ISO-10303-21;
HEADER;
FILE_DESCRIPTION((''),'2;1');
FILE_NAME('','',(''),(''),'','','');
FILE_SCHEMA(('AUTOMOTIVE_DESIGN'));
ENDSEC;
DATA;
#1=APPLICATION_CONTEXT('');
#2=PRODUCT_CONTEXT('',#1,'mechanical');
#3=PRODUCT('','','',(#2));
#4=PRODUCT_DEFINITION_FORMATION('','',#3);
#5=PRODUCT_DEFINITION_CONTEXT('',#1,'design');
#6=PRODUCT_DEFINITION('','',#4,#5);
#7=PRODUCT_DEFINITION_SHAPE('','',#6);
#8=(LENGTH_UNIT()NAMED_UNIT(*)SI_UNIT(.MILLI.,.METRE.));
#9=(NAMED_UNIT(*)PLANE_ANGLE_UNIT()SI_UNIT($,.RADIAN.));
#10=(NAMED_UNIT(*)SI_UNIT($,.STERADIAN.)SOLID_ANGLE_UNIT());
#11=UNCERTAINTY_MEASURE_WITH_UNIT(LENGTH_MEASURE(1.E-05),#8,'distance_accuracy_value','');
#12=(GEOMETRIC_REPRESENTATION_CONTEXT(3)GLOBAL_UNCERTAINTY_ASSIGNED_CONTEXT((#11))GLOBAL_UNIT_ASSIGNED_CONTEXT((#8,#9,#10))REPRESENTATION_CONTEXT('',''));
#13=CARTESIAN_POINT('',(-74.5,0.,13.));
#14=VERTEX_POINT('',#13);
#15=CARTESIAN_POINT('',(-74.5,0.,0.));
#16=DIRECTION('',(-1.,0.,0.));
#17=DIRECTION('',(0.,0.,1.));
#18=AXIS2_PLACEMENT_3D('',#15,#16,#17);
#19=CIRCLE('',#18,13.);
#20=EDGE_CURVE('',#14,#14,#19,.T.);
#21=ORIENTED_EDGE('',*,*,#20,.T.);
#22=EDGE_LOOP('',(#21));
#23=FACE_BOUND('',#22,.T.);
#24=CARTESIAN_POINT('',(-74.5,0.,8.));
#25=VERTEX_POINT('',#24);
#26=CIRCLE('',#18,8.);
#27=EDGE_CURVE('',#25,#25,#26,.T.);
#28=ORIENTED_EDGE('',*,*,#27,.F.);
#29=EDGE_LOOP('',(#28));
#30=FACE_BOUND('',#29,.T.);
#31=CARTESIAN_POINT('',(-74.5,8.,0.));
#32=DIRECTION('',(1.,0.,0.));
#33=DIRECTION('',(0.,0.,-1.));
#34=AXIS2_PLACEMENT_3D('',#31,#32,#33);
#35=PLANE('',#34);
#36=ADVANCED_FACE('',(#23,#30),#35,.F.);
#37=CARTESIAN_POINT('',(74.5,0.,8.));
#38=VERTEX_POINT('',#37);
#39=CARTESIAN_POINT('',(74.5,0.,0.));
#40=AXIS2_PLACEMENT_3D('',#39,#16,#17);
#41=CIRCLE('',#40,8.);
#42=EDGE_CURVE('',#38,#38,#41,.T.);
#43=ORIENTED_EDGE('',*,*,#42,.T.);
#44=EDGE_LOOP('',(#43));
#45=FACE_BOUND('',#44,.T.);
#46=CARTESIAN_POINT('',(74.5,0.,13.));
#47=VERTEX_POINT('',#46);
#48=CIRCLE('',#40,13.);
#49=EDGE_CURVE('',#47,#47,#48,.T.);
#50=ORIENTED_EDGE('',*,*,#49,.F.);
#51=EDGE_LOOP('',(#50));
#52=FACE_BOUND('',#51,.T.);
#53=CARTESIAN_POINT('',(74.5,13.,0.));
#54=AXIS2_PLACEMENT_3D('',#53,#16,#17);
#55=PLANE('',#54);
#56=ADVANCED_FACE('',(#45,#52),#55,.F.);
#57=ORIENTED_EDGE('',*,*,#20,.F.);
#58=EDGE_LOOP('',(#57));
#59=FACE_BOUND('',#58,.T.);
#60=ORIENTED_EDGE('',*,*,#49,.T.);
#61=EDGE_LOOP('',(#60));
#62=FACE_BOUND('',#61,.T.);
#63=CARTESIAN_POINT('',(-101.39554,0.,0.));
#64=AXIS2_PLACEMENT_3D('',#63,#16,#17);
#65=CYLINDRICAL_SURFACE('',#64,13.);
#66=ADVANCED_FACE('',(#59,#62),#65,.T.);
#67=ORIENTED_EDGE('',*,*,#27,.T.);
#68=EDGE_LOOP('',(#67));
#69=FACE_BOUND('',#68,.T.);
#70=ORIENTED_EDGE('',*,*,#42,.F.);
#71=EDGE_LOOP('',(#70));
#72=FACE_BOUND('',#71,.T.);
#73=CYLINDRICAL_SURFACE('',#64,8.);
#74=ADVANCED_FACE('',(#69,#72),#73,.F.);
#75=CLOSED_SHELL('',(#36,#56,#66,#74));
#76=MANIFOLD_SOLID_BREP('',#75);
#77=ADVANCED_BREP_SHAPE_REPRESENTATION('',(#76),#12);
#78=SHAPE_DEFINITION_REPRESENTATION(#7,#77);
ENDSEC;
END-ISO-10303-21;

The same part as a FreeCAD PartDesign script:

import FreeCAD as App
import Part
import Sketcher
from FreeCAD import Vector
Q = App.Units.Quantity

doc = App.newDocument("Part")
body = doc.addObject("PartDesign::Body", "Body")

# Sketch on XY plane
sketch1 = doc.addObject("Sketcher::SketchObject", "Sketch")
body.addObject(sketch1)
sketch1.AttachmentSupport = (doc.XY_Plane, [""])
sketch1.MapMode = "FlatFace"
sketch1.addGeometry([
    Part.LineSegment(Vector(-74.5, 13, 0), Vector(-74.5, 8, 0)),
    Part.LineSegment(Vector(-74.5, 8, 0), Vector(74.5, 8, 0)),
    Part.LineSegment(Vector(74.5, 8, 0), Vector(74.5, 13, 0)),
    Part.LineSegment(Vector(74.5, 13, 0), Vector(-74.5, 13, 0)),
], False)
sketch1.addConstraint([
    Sketcher.Constraint("Coincident", 0, 2, 1, 1),
    Sketcher.Constraint("Coincident", 1, 2, 2, 1),
    Sketcher.Constraint("Coincident", 2, 2, 3, 1),
    Sketcher.Constraint("Coincident", 3, 2, 0, 1),
    Sketcher.Constraint("Vertical", 0),
    Sketcher.Constraint("Horizontal", 1),
    Sketcher.Constraint("Vertical", 2),
    Sketcher.Constraint("Horizontal", 3),
    Sketcher.Constraint("DistanceX", 1, 1, 1, 2, Q("149 mm")),
    Sketcher.Constraint("DistanceY", 0, 2, 0, 1, Q("5 mm")),
    Sketcher.Constraint("DistanceY", -1, 1, 0, 2, Q("8 mm")),
    Sketcher.Constraint("DistanceX", 0, 2, -1, 1, Q("74.5 mm")),
])
revolution = doc.addObject("PartDesign::Revolution", "Revolution")
body.addObject(revolution)
revolution.Profile = sketch1
revolution.ReferenceAxis = (sketch1, ["H_Axis"])
revolution.Angle = 360

doc.recompute()
